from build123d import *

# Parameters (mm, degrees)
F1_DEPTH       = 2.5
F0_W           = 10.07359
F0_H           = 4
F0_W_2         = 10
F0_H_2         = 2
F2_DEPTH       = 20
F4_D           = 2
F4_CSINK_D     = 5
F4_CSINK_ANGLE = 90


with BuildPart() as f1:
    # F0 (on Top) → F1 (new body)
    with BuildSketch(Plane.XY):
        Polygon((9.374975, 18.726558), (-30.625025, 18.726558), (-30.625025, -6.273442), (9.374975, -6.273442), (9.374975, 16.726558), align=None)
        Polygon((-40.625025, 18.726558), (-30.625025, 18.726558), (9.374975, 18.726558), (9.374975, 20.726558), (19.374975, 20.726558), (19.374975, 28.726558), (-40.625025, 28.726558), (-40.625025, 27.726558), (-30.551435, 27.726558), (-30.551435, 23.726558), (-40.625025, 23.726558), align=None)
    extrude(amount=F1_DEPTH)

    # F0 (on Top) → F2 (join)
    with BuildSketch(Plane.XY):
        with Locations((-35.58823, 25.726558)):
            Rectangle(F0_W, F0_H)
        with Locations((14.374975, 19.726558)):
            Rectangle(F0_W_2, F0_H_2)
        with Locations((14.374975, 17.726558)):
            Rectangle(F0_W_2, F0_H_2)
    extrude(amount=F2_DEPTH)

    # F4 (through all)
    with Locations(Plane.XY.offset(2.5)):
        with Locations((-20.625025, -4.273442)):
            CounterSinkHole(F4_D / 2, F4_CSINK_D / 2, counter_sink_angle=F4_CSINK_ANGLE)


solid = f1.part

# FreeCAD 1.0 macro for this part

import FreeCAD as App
import Part
import Sketcher
from FreeCAD import Vector
Q = App.Units.Quantity

doc = App.newDocument("Part")
params = doc.addObject("Spreadsheet::Sheet", "Params")
for row, (alias, value) in enumerate([
    ("sketch1_width", "40 mm"),
    ("sketch1_width2", "10 mm"),
    ("sketch1_height", "25 mm"),
    ("sketch1_height2", "27 mm"),
    ("sketch1_height3", "8 mm"),
    ("pad1_length", "2.5 mm"),
    ("sketch2_width", "10 mm"),
    ("sketch2_height", "4 mm"),
    ("pad2_length", "20 mm"),
    ("sketch3_diameter", "2 mm"),
    ("hole_diameter", "2 mm"),
    ("hole_csink_diameter", "5 mm"),
], start=1):
    params.set(f"A{row}", alias)
    params.set(f"B{row}", "=" + value)
    params.setAlias(f"B{row}", alias)

body = doc.addObject("PartDesign::Body", "Body")

sketch1 = body.newObject("Sketcher::SketchObject", "Sketch")
sketch1.AttachmentSupport = (doc.getObject("XY_Plane"), [""])
sketch1.MapMode = "FlatFace"
sketch1.addGeometry([
    Part.LineSegment(Vector(-30.6, 18.7, 0), Vector(-30.6, -6.3, 0)),
    Part.LineSegment(Vector(-30.6, -6.3, 0), Vector(9.4, -6.3, 0)),
    Part.LineSegment(Vector(9.4, -6.3, 0), Vector(9.4, 20.7, 0)),
    Part.LineSegment(Vector(9.4, 20.7, 0), Vector(19.4, 20.7, 0)),
    Part.LineSegment(Vector(19.4, 20.7, 0), Vector(19.4, 28.7, 0)),
    Part.LineSegment(Vector(19.4, 28.7, 0), Vector(-40.6, 28.7, 0)),
    Part.LineSegment(Vector(-40.6, 28.7, 0), Vector(-40.6, 27.7, 0)),
    Part.LineSegment(Vector(-40.6, 27.7, 0), Vector(-30.6, 27.7, 0)),
    Part.LineSegment(Vector(-30.6, 27.7, 0), Vector(-30.6, 23.7, 0)),
    Part.LineSegment(Vector(-30.6, 23.7, 0), Vector(-40.6, 23.7, 0)),
    Part.LineSegment(Vector(-40.6, 23.7, 0), Vector(-40.6, 18.7, 0)),
    Part.LineSegment(Vector(-40.6, 18.7, 0), Vector(-30.6, 18.7, 0)),
], False)
sketch1.addConstraint([
    Sketcher.Constraint("Coincident", 0, 2, 1, 1),
    Sketcher.Constraint("Coincident", 1, 2, 2, 1),
    Sketcher.Constraint("Coincident", 2, 2, 3, 1),
    Sketcher.Constraint("Coincident", 3, 2, 4, 1),
    Sketcher.Constraint("Coincident", 4, 2, 5, 1),
    Sketcher.Constraint("Coincident", 5, 2, 6, 1),
    Sketcher.Constraint("Coincident", 6, 2, 7, 1),
    Sketcher.Constraint("Coincident", 7, 2, 8, 1),
    Sketcher.Constraint("Coincident", 8, 2, 9, 1),
    Sketcher.Constraint("Coincident", 9, 2, 10, 1),
    Sketcher.Constraint("Coincident", 10, 2, 11, 1),
    Sketcher.Constraint("Coincident", 11, 2, 0, 1),
    Sketcher.Constraint("Vertical", 0),
    Sketcher.Constraint("Horizontal", 1),
    Sketcher.Constraint("Vertical", 2),
    Sketcher.Constraint("Horizontal", 3),
    Sketcher.Constraint("Vertical", 4),
    Sketcher.Constraint("Horizontal", 5),
    Sketcher.Constraint("Vertical", 6),
    Sketcher.Constraint("Horizontal", 7),
    Sketcher.Constraint("Vertical", 8),
    Sketcher.Constraint("Horizontal", 9),
    Sketcher.Constraint("Vertical", 10),
    Sketcher.Constraint("Horizontal", 11),
    Sketcher.Constraint("Vertical", 6, 2, 9, 2),
    Sketcher.Constraint("Equal", 3, 11),
    Sketcher.Constraint("DistanceX", 1, 1, 1, 2, Q("40 mm")),
    Sketcher.Constraint("DistanceX", 3, 1, 3, 2, Q("10 mm")),
    Sketcher.Constraint("DistanceY", 0, 2, 0, 1, Q("25 mm")),
    Sketcher.Constraint("DistanceY", 2, 1, 2, 2, Q("27 mm")),
    Sketcher.Constraint("DistanceY", 4, 1, 4, 2, Q("8 mm")),
    Sketcher.Constraint("DistanceY", 6, 2, 6, 1, Q("1 mm")),
    Sketcher.Constraint("DistanceY", 8, 2, 8, 1, Q("4 mm")),
    Sketcher.Constraint("DistanceX", 7, 1, 7, 2, Q("10.07359 mm")),
    Sketcher.Constraint("DistanceY", -1, 1, 2, 2, Q("20.726558 mm")),
    Sketcher.Constraint("DistanceX", 0, 2, -1, 1, Q("30.625025 mm")),
])
sketch1.setExpression("Constraints[26]", "Params.sketch1_width")
sketch1.setExpression("Constraints[27]", "Params.sketch1_width2")
sketch1.setExpression("Constraints[28]", "Params.sketch1_height")
sketch1.setExpression("Constraints[29]", "Params.sketch1_height2")
sketch1.setExpression("Constraints[30]", "Params.sketch1_height3")
pad1 = body.newObject("PartDesign::Pad", "Pad")
pad1.Profile = sketch1
pad1.setExpression("Length", "Params.pad1_length")

sketch2 = body.newObject("Sketcher::SketchObject", "Sketch001")
sketch2.AttachmentSupport = (doc.getObject("XY_Plane"), [""])
sketch2.MapMode = "FlatFace"
sketch2.addGeometry([
    Part.LineSegment(Vector(-40.6, 27.7, 0), Vector(-40.6, 23.7, 0)),
    Part.LineSegment(Vector(-40.6, 23.7, 0), Vector(-30.6, 23.7, 0)),
    Part.LineSegment(Vector(-30.6, 23.7, 0), Vector(-30.6, 27.7, 0)),
    Part.LineSegment(Vector(-30.6, 27.7, 0), Vector(-40.6, 27.7, 0)),
    Part.LineSegment(Vector(9.4, 20.7, 0), Vector(9.4, 16.7, 0)),
    Part.LineSegment(Vector(9.4, 16.7, 0), Vector(19.4, 16.7, 0)),
    Part.LineSegment(Vector(19.4, 16.7, 0), Vector(19.4, 20.7, 0)),
    Part.LineSegment(Vector(19.4, 20.7, 0), Vector(9.4, 20.7, 0)),
], False)
sketch2.addConstraint([
    Sketcher.Constraint("Coincident", 0, 2, 1, 1),
    Sketcher.Constraint("Coincident", 1, 2, 2, 1),
    Sketcher.Constraint("Coincident", 2, 2, 3, 1),
    Sketcher.Constraint("Coincident", 3, 2, 0, 1),
    Sketcher.Constraint("Coincident", 4, 2, 5, 1),
    Sketcher.Constraint("Coincident", 5, 2, 6, 1),
    Sketcher.Constraint("Coincident", 6, 2, 7, 1),
    Sketcher.Constraint("Coincident", 7, 2, 4, 1),
    Sketcher.Constraint("Vertical", 0),
    Sketcher.Constraint("Horizontal", 1),
    Sketcher.Constraint("Vertical", 2),
    Sketcher.Constraint("Horizontal", 3),
    Sketcher.Constraint("Vertical", 4),
    Sketcher.Constraint("Horizontal", 5),
    Sketcher.Constraint("Vertical", 6),
    Sketcher.Constraint("Horizontal", 7),
    Sketcher.Constraint("Equal", 2, 4),
    Sketcher.Constraint("DistanceX", 5, 1, 5, 2, Q("10 mm")),
    Sketcher.Constraint("DistanceY", 0, 2, 0, 1, Q("4 mm")),
    Sketcher.Constraint("DistanceY", 4, 2, 1, 2, Q("7 mm")),
    Sketcher.Constraint("DistanceX", 0, 2, 4, 2, Q("50 mm")),
    Sketcher.Constraint("DistanceX", 1, 1, 1, 2, Q("10.07359 mm")),
    Sketcher.Constraint("DistanceY", -1, 1, 0, 2, Q("23.726558 mm")),
    Sketcher.Constraint("DistanceX", 0, 2, -1, 1, Q("40.625025 mm")),
])
sketch2.setExpression("Constraints[17]", "Params.sketch2_width")
sketch2.setExpression("Constraints[18]", "Params.sketch2_height")
pad2 = body.newObject("PartDesign::Pad", "Pad001")
pad2.Profile = sketch2
pad2.setExpression("Length", "Params.pad2_length")

sketch3 = body.newObject("Sketcher::SketchObject", "Sketch002")
sketch3.AttachmentSupport = (doc.getObject("XY_Plane"), [""])
sketch3.MapMode = "FlatFace"
sketch3.AttachmentOffset = App.Placement(Vector(0, 0, 2.5), App.Rotation())
sketch3.addGeometry(Part.Circle(Vector(-20.6, -4.3, 0), Vector(0, 0, 1), 1), False)
sketch3.addConstraint([
    Sketcher.Constraint("Diameter", 0, Q("2 mm")),
    Sketcher.Constraint("DistanceX", 0, 3, -1, 1, Q("20.625025 mm")),
    Sketcher.Constraint("DistanceY", 0, 3, -1, 1, Q("4.273442 mm")),
])
sketch3.setExpression("Constraints[0]", "Params.sketch3_diameter")
doc.recompute()
hole = body.newObject("PartDesign::Hole", "Hole")
hole.Profile = sketch3
hole.ThreadType = "None"
hole.setExpression("Diameter", "Params.hole_diameter")
hole.DepthType = "ThroughAll"
hole.HoleCutType = "Countersink"
hole.setExpression("HoleCutDiameter", "Params.hole_csink_diameter")
hole.HoleCutCountersinkAngle = 90

doc.recompute()
